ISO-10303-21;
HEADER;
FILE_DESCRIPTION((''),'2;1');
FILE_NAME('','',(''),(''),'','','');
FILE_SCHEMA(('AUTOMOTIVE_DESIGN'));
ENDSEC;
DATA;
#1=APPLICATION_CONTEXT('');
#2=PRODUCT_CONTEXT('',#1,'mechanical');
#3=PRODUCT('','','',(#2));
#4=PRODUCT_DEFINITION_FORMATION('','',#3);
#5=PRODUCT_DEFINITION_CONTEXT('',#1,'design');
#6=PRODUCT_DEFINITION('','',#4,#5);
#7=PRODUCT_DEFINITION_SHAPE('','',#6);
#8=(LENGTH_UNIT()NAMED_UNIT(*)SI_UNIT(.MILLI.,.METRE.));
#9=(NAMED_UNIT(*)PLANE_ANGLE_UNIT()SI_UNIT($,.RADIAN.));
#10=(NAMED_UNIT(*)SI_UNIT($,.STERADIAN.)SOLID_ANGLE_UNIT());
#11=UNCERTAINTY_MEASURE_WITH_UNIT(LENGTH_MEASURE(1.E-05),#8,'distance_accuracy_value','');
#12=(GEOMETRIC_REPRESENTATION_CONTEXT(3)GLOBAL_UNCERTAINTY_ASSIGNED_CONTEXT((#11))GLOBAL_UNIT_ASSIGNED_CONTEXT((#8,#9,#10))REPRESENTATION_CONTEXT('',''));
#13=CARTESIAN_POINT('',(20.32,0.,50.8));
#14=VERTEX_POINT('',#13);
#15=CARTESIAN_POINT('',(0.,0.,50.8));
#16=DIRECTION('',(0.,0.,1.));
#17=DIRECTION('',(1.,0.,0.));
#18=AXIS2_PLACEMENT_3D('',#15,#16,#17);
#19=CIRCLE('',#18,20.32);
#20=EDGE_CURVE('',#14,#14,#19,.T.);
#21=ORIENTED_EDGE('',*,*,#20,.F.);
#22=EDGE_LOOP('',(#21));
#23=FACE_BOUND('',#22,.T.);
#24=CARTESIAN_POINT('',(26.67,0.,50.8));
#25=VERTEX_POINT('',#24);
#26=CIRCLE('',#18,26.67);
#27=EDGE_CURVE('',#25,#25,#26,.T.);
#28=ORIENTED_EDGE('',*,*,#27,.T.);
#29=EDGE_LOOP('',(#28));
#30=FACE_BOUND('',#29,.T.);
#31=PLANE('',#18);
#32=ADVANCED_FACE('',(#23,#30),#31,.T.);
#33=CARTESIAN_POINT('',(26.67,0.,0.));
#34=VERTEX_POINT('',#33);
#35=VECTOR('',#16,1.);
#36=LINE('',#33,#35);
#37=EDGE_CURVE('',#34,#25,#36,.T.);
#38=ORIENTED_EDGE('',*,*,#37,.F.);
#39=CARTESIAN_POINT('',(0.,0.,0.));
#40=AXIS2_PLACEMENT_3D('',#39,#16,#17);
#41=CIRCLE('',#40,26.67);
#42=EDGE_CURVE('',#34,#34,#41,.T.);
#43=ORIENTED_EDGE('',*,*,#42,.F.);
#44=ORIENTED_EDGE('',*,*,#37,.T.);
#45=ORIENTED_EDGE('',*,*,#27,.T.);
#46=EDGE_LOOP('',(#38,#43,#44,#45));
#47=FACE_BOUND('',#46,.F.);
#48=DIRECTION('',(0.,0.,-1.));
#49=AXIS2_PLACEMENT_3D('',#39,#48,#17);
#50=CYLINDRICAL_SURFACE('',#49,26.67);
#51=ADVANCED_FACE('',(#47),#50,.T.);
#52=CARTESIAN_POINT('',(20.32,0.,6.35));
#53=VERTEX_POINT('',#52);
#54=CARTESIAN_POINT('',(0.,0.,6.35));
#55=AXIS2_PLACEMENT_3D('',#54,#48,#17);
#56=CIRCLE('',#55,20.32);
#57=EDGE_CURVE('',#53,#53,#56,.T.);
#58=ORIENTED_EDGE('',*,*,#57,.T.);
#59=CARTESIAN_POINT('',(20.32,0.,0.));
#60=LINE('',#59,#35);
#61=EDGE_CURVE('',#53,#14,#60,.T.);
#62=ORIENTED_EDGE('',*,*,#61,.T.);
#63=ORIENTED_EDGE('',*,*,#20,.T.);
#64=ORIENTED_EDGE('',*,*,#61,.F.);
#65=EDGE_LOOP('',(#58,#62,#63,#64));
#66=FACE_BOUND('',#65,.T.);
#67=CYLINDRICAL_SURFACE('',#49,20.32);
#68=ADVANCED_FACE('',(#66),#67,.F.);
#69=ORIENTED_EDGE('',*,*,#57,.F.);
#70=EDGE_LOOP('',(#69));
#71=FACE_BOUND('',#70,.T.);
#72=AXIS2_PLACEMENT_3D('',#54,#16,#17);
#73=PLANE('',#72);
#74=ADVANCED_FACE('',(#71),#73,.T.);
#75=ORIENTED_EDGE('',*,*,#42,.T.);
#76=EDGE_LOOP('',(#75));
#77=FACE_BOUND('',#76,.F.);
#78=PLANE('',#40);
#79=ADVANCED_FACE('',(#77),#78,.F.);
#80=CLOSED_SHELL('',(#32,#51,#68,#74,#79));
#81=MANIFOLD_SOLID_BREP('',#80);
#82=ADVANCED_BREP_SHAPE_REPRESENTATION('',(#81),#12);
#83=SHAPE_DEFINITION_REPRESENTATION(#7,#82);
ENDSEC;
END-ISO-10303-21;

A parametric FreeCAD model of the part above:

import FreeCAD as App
import Part
import Sketcher

V = App.Vector
Q = App.Units.Quantity


def faces_at(feature, points):
    """Names of the faces that lie closest to the given points."""
    faces = feature.Shape.Faces
    near = lambda p: min(range(len(faces)), key=lambda i: faces[i].distToShape(Part.Vertex(*p))[0])
    return sorted({f"Face{near(p) + 1}" for p in points})

doc = App.newDocument("Part")
body = doc.addObject("PartDesign::Body", "Body")

sketch1 = body.newObject("Sketcher::SketchObject", "Sketch")
sketch1.AttachmentSupport = (doc.getObject("XY_Plane"), [""])
sketch1.MapMode = "FlatFace"
sketch1.addGeometry(Part.Circle(V(0, 0, 0), V(0, 0, 1), 27), False)
sketch1.addConstraint([
    Sketcher.Constraint("Coincident", 0, 3, -1, 1),
    Sketcher.Constraint("Diameter", 0, Q("2.1 in")),
])
pad1 = body.newObject("PartDesign::Pad", "Pad")
pad1.Profile = sketch1
pad1.Length = Q("2 in")
doc.recompute()

thickness = body.newObject("PartDesign::Thickness", "Thickness")
thickness.Base = (pad1, faces_at(pad1, [(0, 0, 50.8)]))
thickness.Value = Q("0.25 in")
thickness.Reversed = True
thickness.Join = "Arc"

doc.recompute()
